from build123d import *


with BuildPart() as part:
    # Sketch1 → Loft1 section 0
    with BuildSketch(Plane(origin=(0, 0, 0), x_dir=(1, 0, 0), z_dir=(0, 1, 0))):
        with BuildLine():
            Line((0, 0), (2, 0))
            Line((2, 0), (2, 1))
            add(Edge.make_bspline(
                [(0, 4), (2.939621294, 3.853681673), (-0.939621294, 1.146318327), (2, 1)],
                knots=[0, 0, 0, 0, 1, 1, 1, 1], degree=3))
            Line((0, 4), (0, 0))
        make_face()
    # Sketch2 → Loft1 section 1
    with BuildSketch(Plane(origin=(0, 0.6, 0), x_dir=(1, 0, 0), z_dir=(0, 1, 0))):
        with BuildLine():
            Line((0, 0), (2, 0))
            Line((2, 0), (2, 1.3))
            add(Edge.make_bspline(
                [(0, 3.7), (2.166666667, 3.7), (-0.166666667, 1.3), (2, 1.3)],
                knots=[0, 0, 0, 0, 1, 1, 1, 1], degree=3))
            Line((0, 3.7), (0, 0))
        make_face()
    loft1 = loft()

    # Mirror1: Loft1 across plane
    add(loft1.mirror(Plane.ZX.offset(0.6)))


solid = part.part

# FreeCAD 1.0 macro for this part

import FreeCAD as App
import Part
import Sketcher

V = App.Vector

doc = App.newDocument("Part")
body = doc.addObject("PartDesign::Body", "Body")

sketch1 = body.newObject("Sketcher::SketchObject", "Sketch")
sketch1.AttachmentSupport = (doc.getObject("XZ_Plane"), [""])
sketch1.MapMode = "FlatFace"
sketch1.addGeometry(Part.LineSegment(V(0, 0, 0), V(2, 0, 0)), False)
sketch1.addGeometry(Part.LineSegment(V(2, 0, 0), V(2, -1, 0)), False)
sketch1.addGeometry(Part.BSplineCurve([V(0, -4, 0), V(2.939621, -3.853682, 0), V(-0.939621, -1.146318, 0), V(2, -1, 0)], [4, 4], [0, 1], False, 3, [1, 1, 1, 1], False), False)
sketch1.addGeometry(Part.LineSegment(V(0, -4, 0), V(0, 0, 0)), False)
sketch1.addConstraint(Sketcher.Constraint("Block", 2))
sketch1.addConstraint(Sketcher.Constraint("Coincident", 0, 2, 1, 1))
sketch1.addConstraint(Sketcher.Constraint("Coincident", 1, 2, 2, 2))
sketch1.addConstraint(Sketcher.Constraint("Coincident", 2, 1, 3, 1))
sketch1.addConstraint(Sketcher.Constraint("Coincident", 3, 2, 0, 1))
sketch1.addConstraint(Sketcher.Constraint("Horizontal", 0))
sketch1.addConstraint(Sketcher.Constraint("Vertical", 1))
sketch1.addConstraint(Sketcher.Constraint("Vertical", 3))
sketch1.addConstraint(Sketcher.Constraint("PointOnObject", 0, 2, -1))

sketch2 = body.newObject("Sketcher::SketchObject", "Sketch001")
sketch2.AttachmentSupport = (doc.getObject("XZ_Plane"), [""])
sketch2.MapMode = "FlatFace"
sketch2.AttachmentOffset = App.Placement(V(0, 0, -0.6), App.Rotation())
sketch2.addGeometry(Part.LineSegment(V(0, 0, 0), V(2, 0, 0)), False)
sketch2.addGeometry(Part.LineSegment(V(2, 0, 0), V(2, -1.3, 0)), False)
sketch2.addGeometry(Part.BSplineCurve([V(0, -3.7, 0), V(2.166667, -3.7, 0), V(-0.166667, -1.3, 0), V(2, -1.3, 0)], [4, 4], [0, 1], False, 3, [1, 1, 1, 1], False), False)
sketch2.addGeometry(Part.LineSegment(V(0, -3.7, 0), V(0, 0, 0)), False)
sketch2.addConstraint(Sketcher.Constraint("Block", 2))
sketch2.addConstraint(Sketcher.Constraint("Coincident", 0, 2, 1, 1))
sketch2.addConstraint(Sketcher.Constraint("Coincident", 1, 2, 2, 2))
sketch2.addConstraint(Sketcher.Constraint("Coincident", 2, 1, 3, 1))
sketch2.addConstraint(Sketcher.Constraint("Coincident", 3, 2, 0, 1))
sketch2.addConstraint(Sketcher.Constraint("Horizontal", 0))
sketch2.addConstraint(Sketcher.Constraint("Vertical", 1))
sketch2.addConstraint(Sketcher.Constraint("Vertical", 3))
sketch2.addConstraint(Sketcher.Constraint("PointOnObject", 0, 2, -1))

additiveloft = body.newObject("PartDesign::AdditiveLoft", "AdditiveLoft")
additiveloft.Profile = sketch1
additiveloft.Sections = [sketch2]
doc.recompute()

datumplane = body.newObject("PartDesign::Plane", "DatumPlane")
datumplane.AttachmentSupport = (doc.getObject("XZ_Plane"), [""])
datumplane.MapMode = "FlatFace"
datumplane.AttachmentOffset = App.Placement(V(0, 0, -0.6), App.Rotation())
mirrored = body.newObject("PartDesign::Mirrored", "Mirrored")
mirrored.Originals = [additiveloft]
mirrored.MirrorPlane = (datumplane, [""])
body.Tip = mirrored

doc.recompute()
